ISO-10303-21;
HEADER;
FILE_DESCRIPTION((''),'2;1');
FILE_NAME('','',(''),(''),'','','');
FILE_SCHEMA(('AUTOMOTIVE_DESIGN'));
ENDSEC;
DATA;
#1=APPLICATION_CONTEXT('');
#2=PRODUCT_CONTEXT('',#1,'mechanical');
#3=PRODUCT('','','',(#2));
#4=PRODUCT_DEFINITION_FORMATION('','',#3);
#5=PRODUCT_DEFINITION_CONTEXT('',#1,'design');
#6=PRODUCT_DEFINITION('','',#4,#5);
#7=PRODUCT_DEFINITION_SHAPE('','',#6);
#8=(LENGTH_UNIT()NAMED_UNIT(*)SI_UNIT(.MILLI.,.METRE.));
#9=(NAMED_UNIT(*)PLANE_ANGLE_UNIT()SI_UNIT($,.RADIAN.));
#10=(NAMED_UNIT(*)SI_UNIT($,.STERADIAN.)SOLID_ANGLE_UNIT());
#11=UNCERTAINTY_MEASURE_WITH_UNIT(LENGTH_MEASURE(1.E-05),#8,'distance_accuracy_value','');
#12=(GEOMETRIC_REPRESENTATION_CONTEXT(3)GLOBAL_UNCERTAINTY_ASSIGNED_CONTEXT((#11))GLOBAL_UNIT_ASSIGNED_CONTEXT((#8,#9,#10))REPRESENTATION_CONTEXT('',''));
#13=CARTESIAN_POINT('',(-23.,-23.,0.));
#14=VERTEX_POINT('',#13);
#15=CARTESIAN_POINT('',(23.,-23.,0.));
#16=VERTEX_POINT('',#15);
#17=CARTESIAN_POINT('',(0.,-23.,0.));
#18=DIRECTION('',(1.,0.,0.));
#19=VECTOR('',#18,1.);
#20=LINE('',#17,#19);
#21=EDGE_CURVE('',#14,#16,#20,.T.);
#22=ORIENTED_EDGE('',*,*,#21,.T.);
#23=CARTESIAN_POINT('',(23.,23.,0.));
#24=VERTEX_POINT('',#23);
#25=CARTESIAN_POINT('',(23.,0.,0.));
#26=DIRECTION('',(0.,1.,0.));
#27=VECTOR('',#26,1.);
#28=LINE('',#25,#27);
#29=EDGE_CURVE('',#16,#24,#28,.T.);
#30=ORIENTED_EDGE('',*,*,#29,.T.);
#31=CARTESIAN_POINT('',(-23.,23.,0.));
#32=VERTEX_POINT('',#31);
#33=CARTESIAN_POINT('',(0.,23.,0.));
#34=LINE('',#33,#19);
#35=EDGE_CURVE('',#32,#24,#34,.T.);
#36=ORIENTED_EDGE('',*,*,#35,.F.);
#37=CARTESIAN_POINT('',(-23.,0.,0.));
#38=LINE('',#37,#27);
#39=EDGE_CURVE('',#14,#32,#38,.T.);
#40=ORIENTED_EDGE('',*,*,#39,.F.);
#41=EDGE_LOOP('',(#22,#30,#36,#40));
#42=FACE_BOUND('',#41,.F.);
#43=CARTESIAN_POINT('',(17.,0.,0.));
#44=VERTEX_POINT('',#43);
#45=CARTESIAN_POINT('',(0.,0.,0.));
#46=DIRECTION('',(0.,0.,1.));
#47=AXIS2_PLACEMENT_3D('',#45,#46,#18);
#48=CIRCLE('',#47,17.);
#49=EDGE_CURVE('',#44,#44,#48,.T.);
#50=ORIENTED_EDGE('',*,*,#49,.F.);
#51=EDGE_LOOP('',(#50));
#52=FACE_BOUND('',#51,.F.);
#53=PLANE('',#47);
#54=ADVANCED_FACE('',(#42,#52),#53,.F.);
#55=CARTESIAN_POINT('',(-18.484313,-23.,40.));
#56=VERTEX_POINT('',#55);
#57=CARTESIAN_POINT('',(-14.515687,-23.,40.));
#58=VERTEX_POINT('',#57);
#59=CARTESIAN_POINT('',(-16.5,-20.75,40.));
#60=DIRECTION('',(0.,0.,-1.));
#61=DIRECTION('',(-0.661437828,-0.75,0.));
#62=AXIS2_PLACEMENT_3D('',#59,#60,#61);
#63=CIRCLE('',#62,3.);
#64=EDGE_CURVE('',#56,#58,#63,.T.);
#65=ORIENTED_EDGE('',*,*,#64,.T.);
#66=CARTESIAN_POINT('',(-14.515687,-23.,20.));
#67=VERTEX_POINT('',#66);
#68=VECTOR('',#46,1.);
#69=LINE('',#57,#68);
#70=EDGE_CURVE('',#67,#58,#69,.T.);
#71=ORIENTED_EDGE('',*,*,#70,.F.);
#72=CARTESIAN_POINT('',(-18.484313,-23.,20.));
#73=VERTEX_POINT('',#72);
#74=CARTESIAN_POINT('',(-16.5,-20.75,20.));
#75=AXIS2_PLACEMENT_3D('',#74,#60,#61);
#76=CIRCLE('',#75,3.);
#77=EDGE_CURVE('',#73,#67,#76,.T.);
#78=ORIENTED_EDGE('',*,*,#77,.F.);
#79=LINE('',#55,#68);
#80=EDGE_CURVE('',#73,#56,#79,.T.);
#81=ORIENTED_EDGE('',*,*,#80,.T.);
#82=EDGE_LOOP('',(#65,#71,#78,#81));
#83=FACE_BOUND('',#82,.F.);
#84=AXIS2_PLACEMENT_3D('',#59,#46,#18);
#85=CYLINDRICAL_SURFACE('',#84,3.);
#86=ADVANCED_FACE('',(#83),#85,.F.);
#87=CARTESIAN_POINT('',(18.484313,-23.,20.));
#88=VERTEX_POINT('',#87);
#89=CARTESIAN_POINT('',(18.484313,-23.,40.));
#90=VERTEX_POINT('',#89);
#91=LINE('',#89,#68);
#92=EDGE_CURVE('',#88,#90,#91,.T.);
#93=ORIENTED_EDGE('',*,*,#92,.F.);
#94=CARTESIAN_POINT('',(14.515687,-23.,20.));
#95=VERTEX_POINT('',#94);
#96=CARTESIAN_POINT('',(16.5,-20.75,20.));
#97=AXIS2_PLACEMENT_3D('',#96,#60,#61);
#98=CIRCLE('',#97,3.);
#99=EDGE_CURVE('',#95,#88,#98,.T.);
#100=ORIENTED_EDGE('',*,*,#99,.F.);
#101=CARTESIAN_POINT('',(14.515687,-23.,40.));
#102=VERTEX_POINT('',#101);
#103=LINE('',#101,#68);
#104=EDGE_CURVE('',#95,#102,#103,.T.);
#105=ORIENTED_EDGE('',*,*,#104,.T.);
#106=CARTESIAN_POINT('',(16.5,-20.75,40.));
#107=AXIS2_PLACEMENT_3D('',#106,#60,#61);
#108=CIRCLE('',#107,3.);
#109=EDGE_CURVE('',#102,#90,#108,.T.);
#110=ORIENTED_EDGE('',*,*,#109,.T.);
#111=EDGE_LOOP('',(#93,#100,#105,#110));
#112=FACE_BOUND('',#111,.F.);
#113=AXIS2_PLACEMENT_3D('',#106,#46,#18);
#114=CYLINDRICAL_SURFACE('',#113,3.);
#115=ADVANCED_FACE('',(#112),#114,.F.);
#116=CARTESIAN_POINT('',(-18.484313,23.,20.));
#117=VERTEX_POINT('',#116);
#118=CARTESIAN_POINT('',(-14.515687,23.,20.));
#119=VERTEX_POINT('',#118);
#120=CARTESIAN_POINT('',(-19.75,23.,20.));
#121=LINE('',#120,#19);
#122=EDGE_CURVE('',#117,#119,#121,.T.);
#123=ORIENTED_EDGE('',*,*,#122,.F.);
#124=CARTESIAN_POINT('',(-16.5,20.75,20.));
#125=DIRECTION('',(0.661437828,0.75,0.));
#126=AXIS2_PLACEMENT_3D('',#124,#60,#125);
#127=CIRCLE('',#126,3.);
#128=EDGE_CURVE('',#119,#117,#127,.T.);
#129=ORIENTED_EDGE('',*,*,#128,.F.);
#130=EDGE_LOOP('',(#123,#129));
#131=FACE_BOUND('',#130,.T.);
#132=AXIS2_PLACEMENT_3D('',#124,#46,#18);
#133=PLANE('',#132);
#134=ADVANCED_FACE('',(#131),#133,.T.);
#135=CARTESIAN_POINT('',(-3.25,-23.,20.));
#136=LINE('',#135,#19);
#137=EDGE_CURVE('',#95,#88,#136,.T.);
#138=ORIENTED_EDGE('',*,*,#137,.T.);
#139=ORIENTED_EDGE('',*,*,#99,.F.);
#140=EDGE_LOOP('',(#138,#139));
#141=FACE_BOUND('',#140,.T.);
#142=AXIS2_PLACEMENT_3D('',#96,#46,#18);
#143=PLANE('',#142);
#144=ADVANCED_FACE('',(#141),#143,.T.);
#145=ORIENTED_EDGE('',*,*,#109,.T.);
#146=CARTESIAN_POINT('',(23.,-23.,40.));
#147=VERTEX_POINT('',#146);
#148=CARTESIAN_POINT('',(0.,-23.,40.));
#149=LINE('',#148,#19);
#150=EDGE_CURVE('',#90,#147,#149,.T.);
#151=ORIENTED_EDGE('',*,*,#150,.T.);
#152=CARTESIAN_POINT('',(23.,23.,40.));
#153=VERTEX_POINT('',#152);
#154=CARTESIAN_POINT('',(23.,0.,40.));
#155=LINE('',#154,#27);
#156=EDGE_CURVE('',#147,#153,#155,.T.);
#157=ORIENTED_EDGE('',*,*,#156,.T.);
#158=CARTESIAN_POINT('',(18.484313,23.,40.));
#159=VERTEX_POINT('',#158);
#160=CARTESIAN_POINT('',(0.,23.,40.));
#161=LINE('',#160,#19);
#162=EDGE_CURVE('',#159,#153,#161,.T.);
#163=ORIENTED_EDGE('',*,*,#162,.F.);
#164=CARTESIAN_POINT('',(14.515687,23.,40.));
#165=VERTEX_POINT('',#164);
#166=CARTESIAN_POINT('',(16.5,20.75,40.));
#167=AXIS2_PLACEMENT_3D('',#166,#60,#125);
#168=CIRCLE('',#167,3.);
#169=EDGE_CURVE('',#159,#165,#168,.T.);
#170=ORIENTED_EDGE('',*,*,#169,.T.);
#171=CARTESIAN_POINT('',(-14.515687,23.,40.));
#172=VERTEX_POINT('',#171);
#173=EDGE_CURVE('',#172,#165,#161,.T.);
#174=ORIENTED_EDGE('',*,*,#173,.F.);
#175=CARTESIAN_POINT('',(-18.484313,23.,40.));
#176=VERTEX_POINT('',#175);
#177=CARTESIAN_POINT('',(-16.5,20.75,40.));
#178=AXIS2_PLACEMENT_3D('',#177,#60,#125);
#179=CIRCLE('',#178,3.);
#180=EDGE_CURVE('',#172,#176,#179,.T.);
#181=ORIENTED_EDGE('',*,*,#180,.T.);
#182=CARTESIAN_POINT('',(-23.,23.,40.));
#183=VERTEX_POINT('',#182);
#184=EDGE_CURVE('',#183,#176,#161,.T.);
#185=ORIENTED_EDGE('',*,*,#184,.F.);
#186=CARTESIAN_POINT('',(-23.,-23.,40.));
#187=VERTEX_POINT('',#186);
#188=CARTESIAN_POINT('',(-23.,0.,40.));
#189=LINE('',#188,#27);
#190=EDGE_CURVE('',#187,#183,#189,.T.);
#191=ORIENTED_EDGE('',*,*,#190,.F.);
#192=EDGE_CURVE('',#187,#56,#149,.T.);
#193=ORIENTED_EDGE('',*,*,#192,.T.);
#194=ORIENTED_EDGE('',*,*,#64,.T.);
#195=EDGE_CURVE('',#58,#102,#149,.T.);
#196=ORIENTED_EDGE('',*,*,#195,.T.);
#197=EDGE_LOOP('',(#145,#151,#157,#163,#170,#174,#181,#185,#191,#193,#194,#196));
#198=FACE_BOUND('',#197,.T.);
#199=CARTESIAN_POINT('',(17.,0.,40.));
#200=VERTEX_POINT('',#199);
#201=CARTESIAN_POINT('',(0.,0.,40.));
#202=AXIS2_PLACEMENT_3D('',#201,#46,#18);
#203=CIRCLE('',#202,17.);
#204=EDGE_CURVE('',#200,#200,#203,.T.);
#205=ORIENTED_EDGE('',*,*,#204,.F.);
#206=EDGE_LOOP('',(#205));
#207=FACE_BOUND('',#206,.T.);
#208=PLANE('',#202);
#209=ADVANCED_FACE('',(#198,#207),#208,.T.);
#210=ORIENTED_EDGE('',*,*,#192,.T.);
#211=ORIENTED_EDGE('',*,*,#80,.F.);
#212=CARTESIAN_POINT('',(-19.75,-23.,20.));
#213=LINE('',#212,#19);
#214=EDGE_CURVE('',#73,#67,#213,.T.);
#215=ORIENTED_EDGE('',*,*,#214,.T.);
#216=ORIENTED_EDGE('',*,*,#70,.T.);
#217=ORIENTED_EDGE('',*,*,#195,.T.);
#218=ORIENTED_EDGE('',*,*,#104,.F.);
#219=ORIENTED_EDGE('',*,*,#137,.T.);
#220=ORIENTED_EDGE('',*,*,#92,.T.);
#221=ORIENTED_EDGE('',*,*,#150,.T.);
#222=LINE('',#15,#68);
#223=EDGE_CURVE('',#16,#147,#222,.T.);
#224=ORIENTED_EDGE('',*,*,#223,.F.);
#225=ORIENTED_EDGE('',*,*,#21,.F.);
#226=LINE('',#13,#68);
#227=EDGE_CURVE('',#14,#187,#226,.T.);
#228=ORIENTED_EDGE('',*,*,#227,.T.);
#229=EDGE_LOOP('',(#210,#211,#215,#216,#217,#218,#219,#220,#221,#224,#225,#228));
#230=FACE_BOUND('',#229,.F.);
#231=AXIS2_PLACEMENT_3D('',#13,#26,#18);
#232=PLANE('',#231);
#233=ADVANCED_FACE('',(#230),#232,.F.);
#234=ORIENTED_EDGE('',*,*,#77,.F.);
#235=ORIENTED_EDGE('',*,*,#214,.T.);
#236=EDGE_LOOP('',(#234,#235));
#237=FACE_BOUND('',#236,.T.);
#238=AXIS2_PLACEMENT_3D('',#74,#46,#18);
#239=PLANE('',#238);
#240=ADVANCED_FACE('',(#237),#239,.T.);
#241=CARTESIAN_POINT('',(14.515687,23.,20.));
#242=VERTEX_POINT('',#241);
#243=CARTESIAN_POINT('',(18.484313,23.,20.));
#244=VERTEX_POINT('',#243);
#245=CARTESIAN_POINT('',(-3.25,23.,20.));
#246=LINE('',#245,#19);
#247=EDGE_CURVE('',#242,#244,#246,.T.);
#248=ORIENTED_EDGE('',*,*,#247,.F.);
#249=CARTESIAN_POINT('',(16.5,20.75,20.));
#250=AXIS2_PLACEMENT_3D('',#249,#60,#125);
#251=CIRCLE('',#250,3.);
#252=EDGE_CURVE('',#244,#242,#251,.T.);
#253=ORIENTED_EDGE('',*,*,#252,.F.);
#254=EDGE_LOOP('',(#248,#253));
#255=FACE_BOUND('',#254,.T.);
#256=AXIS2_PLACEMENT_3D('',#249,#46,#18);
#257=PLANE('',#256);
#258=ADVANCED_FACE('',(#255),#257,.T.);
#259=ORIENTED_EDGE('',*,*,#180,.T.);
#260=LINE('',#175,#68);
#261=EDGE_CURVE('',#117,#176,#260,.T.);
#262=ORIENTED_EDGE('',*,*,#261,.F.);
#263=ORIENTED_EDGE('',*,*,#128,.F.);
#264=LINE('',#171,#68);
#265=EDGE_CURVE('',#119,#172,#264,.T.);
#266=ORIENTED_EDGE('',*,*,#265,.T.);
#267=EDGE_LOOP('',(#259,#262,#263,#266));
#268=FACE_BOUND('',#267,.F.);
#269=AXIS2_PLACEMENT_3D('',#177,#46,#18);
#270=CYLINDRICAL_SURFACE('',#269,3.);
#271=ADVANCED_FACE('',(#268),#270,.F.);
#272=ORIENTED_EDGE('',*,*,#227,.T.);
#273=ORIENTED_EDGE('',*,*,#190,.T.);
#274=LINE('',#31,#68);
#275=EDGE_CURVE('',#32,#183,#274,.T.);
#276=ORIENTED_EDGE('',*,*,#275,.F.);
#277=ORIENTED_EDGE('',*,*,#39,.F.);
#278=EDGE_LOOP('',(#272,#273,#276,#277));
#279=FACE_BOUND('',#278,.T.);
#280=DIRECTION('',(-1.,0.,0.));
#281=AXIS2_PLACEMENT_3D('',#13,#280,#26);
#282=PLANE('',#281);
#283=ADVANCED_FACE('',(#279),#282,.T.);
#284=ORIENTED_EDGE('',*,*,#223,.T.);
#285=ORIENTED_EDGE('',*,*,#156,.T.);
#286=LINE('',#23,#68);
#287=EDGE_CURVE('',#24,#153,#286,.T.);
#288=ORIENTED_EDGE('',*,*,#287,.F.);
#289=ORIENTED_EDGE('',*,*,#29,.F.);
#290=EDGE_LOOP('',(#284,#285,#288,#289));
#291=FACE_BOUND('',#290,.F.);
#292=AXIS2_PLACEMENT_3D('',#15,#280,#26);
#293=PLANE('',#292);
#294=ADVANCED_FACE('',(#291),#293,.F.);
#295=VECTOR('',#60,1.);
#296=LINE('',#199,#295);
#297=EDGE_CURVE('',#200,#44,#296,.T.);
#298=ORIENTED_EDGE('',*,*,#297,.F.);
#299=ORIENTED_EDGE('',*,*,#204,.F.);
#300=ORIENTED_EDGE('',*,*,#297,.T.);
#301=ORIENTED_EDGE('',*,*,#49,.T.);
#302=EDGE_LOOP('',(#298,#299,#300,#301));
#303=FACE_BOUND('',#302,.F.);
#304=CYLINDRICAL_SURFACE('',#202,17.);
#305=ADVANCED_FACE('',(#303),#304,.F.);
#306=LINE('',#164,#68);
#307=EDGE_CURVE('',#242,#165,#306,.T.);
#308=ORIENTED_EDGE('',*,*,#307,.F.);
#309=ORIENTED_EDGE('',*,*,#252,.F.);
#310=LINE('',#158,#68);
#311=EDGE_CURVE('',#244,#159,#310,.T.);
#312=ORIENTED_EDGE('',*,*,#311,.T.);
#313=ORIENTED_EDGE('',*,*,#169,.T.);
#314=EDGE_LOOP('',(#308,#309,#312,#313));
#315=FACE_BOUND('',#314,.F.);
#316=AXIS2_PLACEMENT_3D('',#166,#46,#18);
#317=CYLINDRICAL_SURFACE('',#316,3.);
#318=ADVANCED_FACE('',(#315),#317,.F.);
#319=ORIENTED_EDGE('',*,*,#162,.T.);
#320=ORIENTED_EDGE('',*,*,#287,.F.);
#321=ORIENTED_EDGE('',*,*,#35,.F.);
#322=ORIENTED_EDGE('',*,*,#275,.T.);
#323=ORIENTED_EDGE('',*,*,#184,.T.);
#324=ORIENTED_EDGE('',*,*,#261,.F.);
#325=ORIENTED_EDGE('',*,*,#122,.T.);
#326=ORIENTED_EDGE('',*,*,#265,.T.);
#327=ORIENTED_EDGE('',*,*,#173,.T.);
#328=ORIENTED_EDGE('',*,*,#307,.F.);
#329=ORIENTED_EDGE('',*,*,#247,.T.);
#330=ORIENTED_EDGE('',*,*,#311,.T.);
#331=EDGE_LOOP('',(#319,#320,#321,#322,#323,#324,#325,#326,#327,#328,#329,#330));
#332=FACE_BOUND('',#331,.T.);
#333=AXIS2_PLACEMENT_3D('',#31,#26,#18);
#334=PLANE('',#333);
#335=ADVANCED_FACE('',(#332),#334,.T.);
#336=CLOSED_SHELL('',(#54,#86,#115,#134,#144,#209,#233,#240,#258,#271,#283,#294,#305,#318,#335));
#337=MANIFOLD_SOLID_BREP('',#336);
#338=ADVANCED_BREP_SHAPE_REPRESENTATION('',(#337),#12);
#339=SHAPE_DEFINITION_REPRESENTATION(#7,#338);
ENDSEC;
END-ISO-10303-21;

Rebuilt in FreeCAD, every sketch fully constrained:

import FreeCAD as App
import Part
import Sketcher

V = App.Vector
Q = App.Units.Quantity

doc = App.newDocument("Part")
body = doc.addObject("PartDesign::Body", "Body")

# Sketch on XY plane
sketch1 = doc.addObject("Sketcher::SketchObject", "Sketch")
body.addObject(sketch1)
sketch1.AttachmentSupport = (doc.XY_Plane, [""])
sketch1.MapMode = "FlatFace"
sketch1.addGeometry([
    Part.LineSegment(V(-23, 23, 0), V(-23, -23, 0)),
    Part.LineSegment(V(-23, -23, 0), V(23, -23, 0)),
    Part.LineSegment(V(23, -23, 0), V(23, 23, 0)),
    Part.LineSegment(V(23, 23, 0), V(-23, 23, 0)),
], False)
sketch1.addConstraint([
    Sketcher.Constraint("Coincident", 0, 2, 1, 1),
    Sketcher.Constraint("Coincident", 1, 2, 2, 1),
    Sketcher.Constraint("Coincident", 2, 2, 3, 1),
    Sketcher.Constraint("Coincident", 3, 2, 0, 1),
    Sketcher.Constraint("Vertical", 0),
    Sketcher.Constraint("Horizontal", 1),
    Sketcher.Constraint("Vertical", 2),
    Sketcher.Constraint("Horizontal", 3),
    Sketcher.Constraint("Symmetric", 0, 2, 2, 2, -1, 1),
    Sketcher.Constraint("Equal", 3, 0),
    Sketcher.Constraint("DistanceX", 1, 1, 1, 2, Q("46 mm")),
])
pad1 = doc.addObject("PartDesign::Pad", "Pad")
body.addObject(pad1)
pad1.Profile = sketch1
pad1.Length = 40

# Sketch on XY plane
sketch2 = doc.addObject("Sketcher::SketchObject", "Sketch001")
body.addObject(sketch2)
sketch2.AttachmentSupport = (doc.XY_Plane, [""])
sketch2.MapMode = "FlatFace"
sketch2.AttachmentOffset = App.Placement(V(0, 0, 40), App.Rotation())
sketch2.addGeometry(Part.Circle(V(0, 0, 0), V(0, 0, 1), 17), False)
sketch2.addConstraint([
    Sketcher.Constraint("Coincident", 0, 3, -1, 1),
    Sketcher.Constraint("Diameter", 0, Q("34 mm")),
])
pocket1 = doc.addObject("PartDesign::Pocket", "Pocket")
body.addObject(pocket1)
pocket1.Profile = sketch2
pocket1.Type = "ThroughAll"

# Sketch on XY plane
sketch3 = doc.addObject("Sketcher::SketchObject", "Sketch002")
body.addObject(sketch3)
sketch3.AttachmentSupport = (doc.XY_Plane, [""])
sketch3.MapMode = "FlatFace"
sketch3.AttachmentOffset = App.Placement(V(0, 0, 40), App.Rotation())
sketch3.addGeometry([
    Part.Circle(V(16.5, 20.8, 0), V(0, 0, 1), 3),
    Part.Circle(V(-16.5, 20.8, 0), V(0, 0, 1), 3),
    Part.Circle(V(-16.5, -20.8, 0), V(0, 0, 1), 3),
    Part.Circle(V(16.5, -20.8, 0), V(0, 0, 1), 3),
], False)
sketch3.addConstraint([
    Sketcher.Constraint("Equal", 0, 1),
    Sketcher.Constraint("Equal", 1, 2),
    Sketcher.Constraint("Equal", 2, 3),
    Sketcher.Constraint("Symmetric", 0, 3, 2, 3, -1, 1),
    Sketcher.Constraint("Symmetric", 1, 3, 3, 3, -1, 1),
    Sketcher.Constraint("Symmetric", 0, 3, 1, 3, -2),
    Sketcher.Constraint("Diameter", 0, Q("6 mm")),
    Sketcher.Constraint("DistanceX", 1, 3, 0, 3, Q("33 mm")),
    Sketcher.Constraint("DistanceY", 2, 3, 1, 3, Q("41.5 mm")),
])
pocket2 = doc.addObject("PartDesign::Pocket", "Pocket001")
body.addObject(pocket2)
pocket2.Profile = sketch3
pocket2.Length = 20

doc.recompute()
